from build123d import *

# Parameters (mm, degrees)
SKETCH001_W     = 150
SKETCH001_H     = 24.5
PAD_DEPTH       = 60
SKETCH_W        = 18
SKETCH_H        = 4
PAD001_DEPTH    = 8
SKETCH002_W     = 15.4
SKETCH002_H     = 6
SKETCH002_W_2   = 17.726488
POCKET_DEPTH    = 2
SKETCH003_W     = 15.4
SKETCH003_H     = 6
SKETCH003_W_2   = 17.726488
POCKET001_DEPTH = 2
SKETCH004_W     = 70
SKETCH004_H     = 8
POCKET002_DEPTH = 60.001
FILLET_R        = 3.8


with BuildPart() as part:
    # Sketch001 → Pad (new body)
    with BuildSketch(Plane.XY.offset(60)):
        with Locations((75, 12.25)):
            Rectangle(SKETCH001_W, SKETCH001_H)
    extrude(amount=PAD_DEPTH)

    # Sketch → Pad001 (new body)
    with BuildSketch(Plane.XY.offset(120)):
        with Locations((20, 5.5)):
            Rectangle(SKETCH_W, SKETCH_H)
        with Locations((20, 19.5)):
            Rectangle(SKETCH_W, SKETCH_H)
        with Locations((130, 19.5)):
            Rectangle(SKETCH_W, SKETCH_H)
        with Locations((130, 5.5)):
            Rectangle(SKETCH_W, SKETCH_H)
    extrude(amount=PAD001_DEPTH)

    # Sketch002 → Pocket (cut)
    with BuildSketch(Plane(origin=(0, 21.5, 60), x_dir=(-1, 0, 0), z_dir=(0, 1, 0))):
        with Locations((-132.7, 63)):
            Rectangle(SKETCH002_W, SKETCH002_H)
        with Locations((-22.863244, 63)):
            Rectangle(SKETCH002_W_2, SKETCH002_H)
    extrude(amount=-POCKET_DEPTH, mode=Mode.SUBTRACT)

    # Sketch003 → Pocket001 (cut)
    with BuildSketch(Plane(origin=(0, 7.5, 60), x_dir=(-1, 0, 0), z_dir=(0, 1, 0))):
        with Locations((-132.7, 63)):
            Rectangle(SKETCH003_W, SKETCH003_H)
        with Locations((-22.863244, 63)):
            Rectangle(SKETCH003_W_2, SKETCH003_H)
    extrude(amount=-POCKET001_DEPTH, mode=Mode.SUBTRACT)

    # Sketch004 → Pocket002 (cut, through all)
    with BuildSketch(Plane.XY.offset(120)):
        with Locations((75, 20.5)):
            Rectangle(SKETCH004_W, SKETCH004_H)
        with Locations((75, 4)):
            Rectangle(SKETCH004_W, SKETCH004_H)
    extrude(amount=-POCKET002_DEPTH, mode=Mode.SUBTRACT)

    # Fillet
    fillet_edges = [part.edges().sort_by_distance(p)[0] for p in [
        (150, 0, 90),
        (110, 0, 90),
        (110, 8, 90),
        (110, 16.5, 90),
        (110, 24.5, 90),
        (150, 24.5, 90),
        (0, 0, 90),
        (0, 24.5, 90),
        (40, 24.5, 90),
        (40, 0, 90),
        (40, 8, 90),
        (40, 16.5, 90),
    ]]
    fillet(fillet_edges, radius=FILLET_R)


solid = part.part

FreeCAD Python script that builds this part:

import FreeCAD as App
import Part
import Sketcher

V = App.Vector


def edges_at(feature, points):
    """Names of the edges that pass closest to the given points."""
    edges = feature.Shape.Edges
    near = lambda p: min(range(len(edges)), key=lambda i: edges[i].distToShape(Part.Vertex(*p))[0])
    return sorted({f"Edge{near(p) + 1}" for p in points})

doc = App.newDocument("Part")
body = doc.addObject("PartDesign::Body", "Body")

# Sketch on XY plane
sketch1 = doc.addObject("Sketcher::SketchObject", "Sketch")
body.addObject(sketch1)
sketch1.AttachmentSupport = (doc.XY_Plane, [""])
sketch1.MapMode = "FlatFace"
sketch1.AttachmentOffset = App.Placement(V(0, 0, 60), App.Rotation())
sketch1.addGeometry(Part.LineSegment(V(0, 24, 0), V(0, 0, 0)), False)
sketch1.addGeometry(Part.LineSegment(V(0, 0, 0), V(150, 0, 0)), False)
sketch1.addGeometry(Part.LineSegment(V(150, 0, 0), V(150, 24, 0)), False)
sketch1.addGeometry(Part.LineSegment(V(150, 24, 0), V(0, 24, 0)), False)
sketch1.addConstraint(Sketcher.Constraint("Coincident", 0, 2, 1, 1))
sketch1.addConstraint(Sketcher.Constraint("Coincident", 1, 2, 2, 1))
sketch1.addConstraint(Sketcher.Constraint("Coincident", 2, 2, 3, 1))
sketch1.addConstraint(Sketcher.Constraint("Coincident", 3, 2, 0, 1))
sketch1.addConstraint(Sketcher.Constraint("Vertical", 0))
sketch1.addConstraint(Sketcher.Constraint("Horizontal", 1))
sketch1.addConstraint(Sketcher.Constraint("Vertical", 2))
sketch1.addConstraint(Sketcher.Constraint("Horizontal", 3))
sketch1.addConstraint(Sketcher.Constraint("Coincident", 0, 2, -1, 1))
sketch1.addConstraint(Sketcher.Constraint("DistanceX", 1, 1, 1, 2, 150.0))
sketch1.addConstraint(Sketcher.Constraint("DistanceY", 0, 2, 0, 1, 24.5))
pad1 = doc.addObject("PartDesign::Pad", "Pad")
body.addObject(pad1)
pad1.Profile = sketch1
pad1.Length = 60

# Sketch on XY plane
sketch2 = doc.addObject("Sketcher::SketchObject", "Sketch001")
body.addObject(sketch2)
sketch2.AttachmentSupport = (doc.XY_Plane, [""])
sketch2.MapMode = "FlatFace"
sketch2.AttachmentOffset = App.Placement(V(0, 0, 120), App.Rotation())
sketch2.addGeometry(Part.LineSegment(V(11, 7.5, 0), V(11, 3.5, 0)), False)
sketch2.addGeometry(Part.LineSegment(V(11, 3.5, 0), V(29, 3.5, 0)), False)
sketch2.addGeometry(Part.LineSegment(V(29, 3.5, 0), V(29, 7.5, 0)), False)
sketch2.addGeometry(Part.LineSegment(V(29, 7.5, 0), V(11, 7.5, 0)), False)
sketch2.addGeometry(Part.LineSegment(V(11, 21.5, 0), V(11, 17.5, 0)), False)
sketch2.addGeometry(Part.LineSegment(V(11, 17.5, 0), V(29, 17.5, 0)), False)
sketch2.addGeometry(Part.LineSegment(V(29, 17.5, 0), V(29, 21.5, 0)), False)
sketch2.addGeometry(Part.LineSegment(V(29, 21.5, 0), V(11, 21.5, 0)), False)
sketch2.addGeometry(Part.LineSegment(V(121, 21.5, 0), V(121, 17.5, 0)), False)
sketch2.addGeometry(Part.LineSegment(V(121, 17.5, 0), V(139, 17.5, 0)), False)
sketch2.addGeometry(Part.LineSegment(V(139, 17.5, 0), V(139, 21.5, 0)), False)
sketch2.addGeometry(Part.LineSegment(V(139, 21.5, 0), V(121, 21.5, 0)), False)
sketch2.addGeometry(Part.LineSegment(V(121, 7.5, 0), V(121, 3.5, 0)), False)
sketch2.addGeometry(Part.LineSegment(V(121, 3.5, 0), V(139, 3.5, 0)), False)
sketch2.addGeometry(Part.LineSegment(V(139, 3.5, 0), V(139, 7.5, 0)), False)
sketch2.addGeometry(Part.LineSegment(V(139, 7.5, 0), V(121, 7.5, 0)), False)
sketch2.addConstraint(Sketcher.Constraint("Coincident", 0, 2, 1, 1))
sketch2.addConstraint(Sketcher.Constraint("Coincident", 1, 2, 2, 1))
sketch2.addConstraint(Sketcher.Constraint("Coincident", 2, 2, 3, 1))
sketch2.addConstraint(Sketcher.Constraint("Coincident", 3, 2, 0, 1))
sketch2.addConstraint(Sketcher.Constraint("Coincident", 4, 2, 5, 1))
sketch2.addConstraint(Sketcher.Constraint("Coincident", 5, 2, 6, 1))
sketch2.addConstraint(Sketcher.Constraint("Coincident", 6, 2, 7, 1))
sketch2.addConstraint(Sketcher.Constraint("Coincident", 7, 2, 4, 1))
sketch2.addConstraint(Sketcher.Constraint("Coincident", 8, 2, 9, 1))
sketch2.addConstraint(Sketcher.Constraint("Coincident", 9, 2, 10, 1))
sketch2.addConstraint(Sketcher.Constraint("Coincident", 10, 2, 11, 1))
sketch2.addConstraint(Sketcher.Constraint("Coincident", 11, 2, 8, 1))
sketch2.addConstraint(Sketcher.Constraint("Coincident", 12, 2, 13, 1))
sketch2.addConstraint(Sketcher.Constraint("Coincident", 13, 2, 14, 1))
sketch2.addConstraint(Sketcher.Constraint("Coincident", 14, 2, 15, 1))
sketch2.addConstraint(Sketcher.Constraint("Coincident", 15, 2, 12, 1))
sketch2.addConstraint(Sketcher.Constraint("Vertical", 0))
sketch2.addConstraint(Sketcher.Constraint("Horizontal", 1))
sketch2.addConstraint(Sketcher.Constraint("Vertical", 2))
sketch2.addConstraint(Sketcher.Constraint("Horizontal", 3))
sketch2.addConstraint(Sketcher.Constraint("Vertical", 4))
sketch2.addConstraint(Sketcher.Constraint("Horizontal", 5))
sketch2.addConstraint(Sketcher.Constraint("Vertical", 6))
sketch2.addConstraint(Sketcher.Constraint("Horizontal", 7))
sketch2.addConstraint(Sketcher.Constraint("Vertical", 8))
sketch2.addConstraint(Sketcher.Constraint("Horizontal", 9))
sketch2.addConstraint(Sketcher.Constraint("Vertical", 10))
sketch2.addConstraint(Sketcher.Constraint("Horizontal", 11))
sketch2.addConstraint(Sketcher.Constraint("Vertical", 12))
sketch2.addConstraint(Sketcher.Constraint("Horizontal", 13))
sketch2.addConstraint(Sketcher.Constraint("Vertical", 14))
sketch2.addConstraint(Sketcher.Constraint("Horizontal", 15))
sketch2.addConstraint(Sketcher.Constraint("Horizontal", 5, 2, 8, 2))
sketch2.addConstraint(Sketcher.Constraint("Horizontal", 7, 2, 10, 2))
sketch2.addConstraint(Sketcher.Constraint("Horizontal", 1, 2, 12, 2))
sketch2.addConstraint(Sketcher.Constraint("Horizontal", 3, 2, 14, 2))
sketch2.addConstraint(Sketcher.Constraint("Vertical", 3, 2, 4, 2))
sketch2.addConstraint(Sketcher.Constraint("Vertical", 2, 2, 5, 2))
sketch2.addConstraint(Sketcher.Constraint("Vertical", 11, 2, 12, 2))
sketch2.addConstraint(Sketcher.Constraint("Vertical", 10, 2, 13, 2))
sketch2.addConstraint(Sketcher.Constraint("Equal", 7, 9))
sketch2.addConstraint(Sketcher.Constraint("Equal", 2, 4))
sketch2.addConstraint(Sketcher.Constraint("DistanceX", 1, 1, 1, 2, 18.0))
sketch2.addConstraint(Sketcher.Constraint("DistanceY", 0, 2, 0, 1, 4.0))
sketch2.addConstraint(Sketcher.Constraint("DistanceX", -1, 1, 0, 2, 11.0))
sketch2.addConstraint(Sketcher.Constraint("DistanceX", -1, 1, 8, 2, 121.0))
sketch2.addConstraint(Sketcher.Constraint("DistanceY", 3, 2, 4, 2, 10.0))
sketch2.addConstraint(Sketcher.Constraint("DistanceY", -1, 1, 0, 2, 3.5))
pad2 = doc.addObject("PartDesign::Pad", "Pad001")
body.addObject(pad2)
pad2.Profile = sketch2
pad2.Length = 8

# Sketch on XZ plane
sketch3 = doc.addObject("Sketcher::SketchObject", "Sketch002")
body.addObject(sketch3)
sketch3.AttachmentSupport = (doc.XZ_Plane, [""])
sketch3.MapMode = "FlatFace"
sketch3.AttachmentOffset = App.Placement(V(0, 0, -21.5), App.Rotation())
sketch3.addGeometry(Part.LineSegment(V(140, 126, 0), V(140, 120, 0)), False)
sketch3.addGeometry(Part.LineSegment(V(140, 120, 0), V(125, 120, 0)), False)
sketch3.addGeometry(Part.LineSegment(V(125, 120, 0), V(125, 126, 0)), False)
sketch3.addGeometry(Part.LineSegment(V(125, 126, 0), V(140, 126, 0)), False)
sketch3.addGeometry(Part.LineSegment(V(32, 126, 0), V(32, 120, 0)), False)
sketch3.addGeometry(Part.LineSegment(V(32, 120, 0), V(14, 120, 0)), False)
sketch3.addGeometry(Part.LineSegment(V(14, 120, 0), V(14, 126, 0)), False)
sketch3.addGeometry(Part.LineSegment(V(14, 126, 0), V(32, 126, 0)), False)
sketch3.addConstraint(Sketcher.Constraint("Coincident", 0, 2, 1, 1))
sketch3.addConstraint(Sketcher.Constraint("Coincident", 1, 2, 2, 1))
sketch3.addConstraint(Sketcher.Constraint("Coincident", 2, 2, 3, 1))
sketch3.addConstraint(Sketcher.Constraint("Coincident", 3, 2, 0, 1))
sketch3.addConstraint(Sketcher.Constraint("Coincident", 4, 2, 5, 1))
sketch3.addConstraint(Sketcher.Constraint("Coincident", 5, 2, 6, 1))
sketch3.addConstraint(Sketcher.Constraint("Coincident", 6, 2, 7, 1))
sketch3.addConstraint(Sketcher.Constraint("Coincident", 7, 2, 4, 1))
sketch3.addConstraint(Sketcher.Constraint("Vertical", 0))
sketch3.addConstraint(Sketcher.Constraint("Horizontal", 1))
sketch3.addConstraint(Sketcher.Constraint("Vertical", 2))
sketch3.addConstraint(Sketcher.Constraint("Horizontal", 3))
sketch3.addConstraint(Sketcher.Constraint("Vertical", 4))
sketch3.addConstraint(Sketcher.Constraint("Horizontal", 5))
sketch3.addConstraint(Sketcher.Constraint("Vertical", 6))
sketch3.addConstraint(Sketcher.Constraint("Horizontal", 7))
sketch3.addConstraint(Sketcher.Constraint("Horizontal", 1, 2, 4, 2))
sketch3.addConstraint(Sketcher.Constraint("Horizontal", 3, 2, 6, 2))
sketch3.addConstraint(Sketcher.Constraint("DistanceY", 0, 2, 0, 1, 6.0))
sketch3.addConstraint(Sketcher.Constraint("DistanceX", 1, 2, 1, 1, 15.4))
sketch3.addConstraint(Sketcher.Constraint("DistanceY", -1, 1, 0, 2, 120.0))
sketch3.addConstraint(Sketcher.Constraint("DistanceX", -1, 1, 1, 2, 125.0))
sketch3.addConstraint(Sketcher.Constraint("DistanceX", -1, 1, 5, 2, 14.0))
sketch3.addConstraint(Sketcher.Constraint("DistanceX", 5, 2, 5, 1, 17.726488))
pocket1 = doc.addObject("PartDesign::Pocket", "Pocket")
body.addObject(pocket1)
pocket1.Profile = sketch3
pocket1.Length = 2
pocket1.Reversed = True

# Sketch on XZ plane
sketch4 = doc.addObject("Sketcher::SketchObject", "Sketch003")
body.addObject(sketch4)
sketch4.AttachmentSupport = (doc.XZ_Plane, [""])
sketch4.MapMode = "FlatFace"
sketch4.AttachmentOffset = App.Placement(V(0, 0, -7.5), App.Rotation())
sketch4.addGeometry(Part.LineSegment(V(140, 126, 0), V(140, 120, 0)), False)
sketch4.addGeometry(Part.LineSegment(V(140, 120, 0), V(125, 120, 0)), False)
sketch4.addGeometry(Part.LineSegment(V(125, 120, 0), V(125, 126, 0)), False)
sketch4.addGeometry(Part.LineSegment(V(125, 126, 0), V(140, 126, 0)), False)
sketch4.addGeometry(Part.LineSegment(V(32, 126, 0), V(32, 120, 0)), False)
sketch4.addGeometry(Part.LineSegment(V(32, 120, 0), V(14, 120, 0)), False)
sketch4.addGeometry(Part.LineSegment(V(14, 120, 0), V(14, 126, 0)), False)
sketch4.addGeometry(Part.LineSegment(V(14, 126, 0), V(32, 126, 0)), False)
sketch4.addConstraint(Sketcher.Constraint("Coincident", 0, 2, 1, 1))
sketch4.addConstraint(Sketcher.Constraint("Coincident", 1, 2, 2, 1))
sketch4.addConstraint(Sketcher.Constraint("Coincident", 2, 2, 3, 1))
sketch4.addConstraint(Sketcher.Constraint("Coincident", 3, 2, 0, 1))
sketch4.addConstraint(Sketcher.Constraint("Coincident", 4, 2, 5, 1))
sketch4.addConstraint(Sketcher.Constraint("Coincident", 5, 2, 6, 1))
sketch4.addConstraint(Sketcher.Constraint("Coincident", 6, 2, 7, 1))
sketch4.addConstraint(Sketcher.Constraint("Coincident", 7, 2, 4, 1))
sketch4.addConstraint(Sketcher.Constraint("Vertical", 0))
sketch4.addConstraint(Sketcher.Constraint("Horizontal", 1))
sketch4.addConstraint(Sketcher.Constraint("Vertical", 2))
sketch4.addConstraint(Sketcher.Constraint("Horizontal", 3))
sketch4.addConstraint(Sketcher.Constraint("Vertical", 4))
sketch4.addConstraint(Sketcher.Constraint("Horizontal", 5))
sketch4.addConstraint(Sketcher.Constraint("Vertical", 6))
sketch4.addConstraint(Sketcher.Constraint("Horizontal", 7))
sketch4.addConstraint(Sketcher.Constraint("Horizontal", 1, 2, 4, 2))
sketch4.addConstraint(Sketcher.Constraint("Horizontal", 3, 2, 6, 2))
sketch4.addConstraint(Sketcher.Constraint("DistanceY", 0, 2, 0, 1, 6.0))
sketch4.addConstraint(Sketcher.Constraint("DistanceX", 1, 2, 1, 1, 15.4))
sketch4.addConstraint(Sketcher.Constraint("DistanceY", -1, 1, 0, 2, 120.0))
sketch4.addConstraint(Sketcher.Constraint("DistanceX", -1, 1, 1, 2, 125.0))
sketch4.addConstraint(Sketcher.Constraint("DistanceX", -1, 1, 5, 2, 14.0))
sketch4.addConstraint(Sketcher.Constraint("DistanceX", 5, 2, 5, 1, 17.726488))
pocket2 = doc.addObject("PartDesign::Pocket", "Pocket001")
body.addObject(pocket2)
pocket2.Profile = sketch4
pocket2.Length = 2
pocket2.Reversed = True

# Sketch on XY plane
sketch5 = doc.addObject("Sketcher::SketchObject", "Sketch004")
body.addObject(sketch5)
sketch5.AttachmentSupport = (doc.XY_Plane, [""])
sketch5.MapMode = "FlatFace"
sketch5.AttachmentOffset = App.Placement(V(0, 0, 120), App.Rotation())
sketch5.addGeometry(Part.LineSegment(V(40, 24, 0), V(40, 16, 0)), False)
sketch5.addGeometry(Part.LineSegment(V(40, 16, 0), V(110, 16, 0)), False)
sketch5.addGeometry(Part.LineSegment(V(110, 16, 0), V(110, 24, 0)), False)
sketch5.addGeometry(Part.LineSegment(V(110, 24, 0), V(40, 24, 0)), False)
sketch5.addGeometry(Part.LineSegment(V(40, 8, 0), V(40, 0, 0)), False)
sketch5.addGeometry(Part.LineSegment(V(40, 0, 0), V(110, 0, 0)), False)
sketch5.addGeometry(Part.LineSegment(V(110, 0, 0), V(110, 8, 0)), False)
sketch5.addGeometry(Part.LineSegment(V(110, 8, 0), V(40, 8, 0)), False)
sketch5.addConstraint(Sketcher.Constraint("Coincident", 0, 2, 1, 1))
sketch5.addConstraint(Sketcher.Constraint("Coincident", 1, 2, 2, 1))
sketch5.addConstraint(Sketcher.Constraint("Coincident", 2, 2, 3, 1))
sketch5.addConstraint(Sketcher.Constraint("Coincident", 3, 2, 0, 1))
sketch5.addConstraint(Sketcher.Constraint("Coincident", 4, 2, 5, 1))
sketch5.addConstraint(Sketcher.Constraint("Coincident", 5, 2, 6, 1))
sketch5.addConstraint(Sketcher.Constraint("Coincident", 6, 2, 7, 1))
sketch5.addConstraint(Sketcher.Constraint("Coincident", 7, 2, 4, 1))
sketch5.addConstraint(Sketcher.Constraint("Vertical", 0))
sketch5.addConstraint(Sketcher.Constraint("Horizontal", 1))
sketch5.addConstraint(Sketcher.Constraint("Vertical", 2))
sketch5.addConstraint(Sketcher.Constraint("Horizontal", 3))
sketch5.addConstraint(Sketcher.Constraint("Vertical", 4))
sketch5.addConstraint(Sketcher.Constraint("Horizontal", 5))
sketch5.addConstraint(Sketcher.Constraint("Vertical", 6))
sketch5.addConstraint(Sketcher.Constraint("Horizontal", 7))
sketch5.addConstraint(Sketcher.Constraint("PointOnObject", 4, 2, -1))
sketch5.addConstraint(Sketcher.Constraint("Vertical", 3, 2, 4, 2))
sketch5.addConstraint(Sketcher.Constraint("Vertical", 2, 2, 5, 2))
sketch5.addConstraint(Sketcher.Constraint("Equal", 2, 4))
sketch5.addConstraint(Sketcher.Constraint("DistanceX", 1, 1, 1, 2, 70.0))
sketch5.addConstraint(Sketcher.Constraint("DistanceY", 0, 2, 0, 1, 8.0))
sketch5.addConstraint(Sketcher.Constraint("DistanceX", -1, 1, 0, 2, 40.0))
sketch5.addConstraint(Sketcher.Constraint("DistanceY", -1, 1, 0, 2, 16.5))
pocket3 = doc.addObject("PartDesign::Pocket", "Pocket002")
body.addObject(pocket3)
pocket3.Profile = sketch5
pocket3.Type = "ThroughAll"
doc.recompute()

fillet = doc.addObject("PartDesign::Fillet", "Fillet")
body.addObject(fillet)
fillet.Base = (pocket3, edges_at(pocket3, [
    (150, 0, 90),
    (110, 0, 90),
    (110, 8, 90),
    (110, 16.5, 90),
    (110, 24.5, 90),
    (150, 24.5, 90),
    (0, 0, 90),
    (0, 24.5, 90),
    (40, 24.5, 90),
    (40, 0, 90),
    (40, 8, 90),
    (40, 16.5, 90),
]))
fillet.Radius = 3.8

doc.recompute()
